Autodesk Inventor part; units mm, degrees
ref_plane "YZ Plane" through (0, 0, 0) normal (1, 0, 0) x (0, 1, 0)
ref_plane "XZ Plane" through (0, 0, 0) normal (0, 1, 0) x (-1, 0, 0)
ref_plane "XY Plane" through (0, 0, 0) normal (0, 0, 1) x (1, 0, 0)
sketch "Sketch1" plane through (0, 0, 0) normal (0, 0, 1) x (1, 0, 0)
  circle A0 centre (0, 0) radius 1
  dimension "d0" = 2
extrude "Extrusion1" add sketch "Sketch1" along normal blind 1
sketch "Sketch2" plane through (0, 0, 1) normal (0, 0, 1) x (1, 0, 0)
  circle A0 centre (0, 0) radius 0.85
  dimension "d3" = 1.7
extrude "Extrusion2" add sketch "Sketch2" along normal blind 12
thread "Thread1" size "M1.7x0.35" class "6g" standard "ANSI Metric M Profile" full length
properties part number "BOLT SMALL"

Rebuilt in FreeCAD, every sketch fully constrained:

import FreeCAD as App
import Part
import Sketcher
Q = App.Units.Quantity

doc = App.newDocument("Part")
body = doc.addObject("PartDesign::Body", "Body")

# Sketch on XY plane
sketch1 = doc.addObject("Sketcher::SketchObject", "Sketch")
body.addObject(sketch1)
sketch1.AttachmentSupport = (doc.XY_Plane, [""])
sketch1.MapMode = "FlatFace"
sketch1.addGeometry(Part.Circle(App.Vector(0, 0, 0), App.Vector(0, 0, 1), 1), False)
sketch1.addConstraint([
    Sketcher.Constraint("Coincident", 0, 3, -1, 1),
    Sketcher.Constraint("Diameter", 0, Q("2 mm")),
])
pad1 = doc.addObject("PartDesign::Pad", "Pad")
body.addObject(pad1)
pad1.Profile = sketch1
pad1.Length = 1

# Sketch on XY plane
sketch2 = doc.addObject("Sketcher::SketchObject", "Sketch001")
body.addObject(sketch2)
sketch2.AttachmentSupport = (doc.XY_Plane, [""])
sketch2.MapMode = "FlatFace"
sketch2.AttachmentOffset = App.Placement(App.Vector(0, 0, 1), App.Rotation())
sketch2.addGeometry(Part.Circle(App.Vector(0, 0, 0), App.Vector(0, 0, 1), 0.8), False)
sketch2.addConstraint([
    Sketcher.Constraint("Coincident", 0, 3, -1, 1),
    Sketcher.Constraint("Diameter", 0, Q("1.7 mm")),
])
pad2 = doc.addObject("PartDesign::Pad", "Pad001")
body.addObject(pad2)
pad2.Profile = sketch2
pad2.Length = 12

doc.recompute()
